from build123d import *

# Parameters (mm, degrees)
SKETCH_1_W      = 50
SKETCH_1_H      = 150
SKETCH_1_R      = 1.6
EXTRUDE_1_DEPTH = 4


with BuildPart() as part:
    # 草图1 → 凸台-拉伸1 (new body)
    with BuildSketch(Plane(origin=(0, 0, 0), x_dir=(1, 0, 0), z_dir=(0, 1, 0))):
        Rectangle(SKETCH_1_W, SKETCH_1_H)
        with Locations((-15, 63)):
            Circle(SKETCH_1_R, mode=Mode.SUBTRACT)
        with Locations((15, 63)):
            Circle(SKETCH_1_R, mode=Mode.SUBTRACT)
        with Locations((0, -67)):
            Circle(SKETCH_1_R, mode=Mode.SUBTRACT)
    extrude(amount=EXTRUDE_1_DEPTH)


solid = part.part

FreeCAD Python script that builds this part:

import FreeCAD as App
import Part
import Sketcher

V = App.Vector


def add_polygon(sketch, points):
    """Adds a closed chain of lines whose ends are joined by coincident constraints."""
    first, n = sketch.GeometryCount, len(points)
    for a, b in zip(points, points[1:] + points[:1]):
        sketch.addGeometry(Part.LineSegment(App.Vector(*a, 0), App.Vector(*b, 0)), False)
    for i in range(n):
        sketch.addConstraint(Sketcher.Constraint("Coincident", first + i, 2, first + (i + 1) % n, 1))

doc = App.newDocument("Part")
body = doc.addObject("PartDesign::Body", "Body")

sketch1 = doc.addObject("Sketcher::SketchObject", "Sketch")
body.addObject(sketch1)
sketch1.AttachmentSupport = (doc.XZ_Plane, [""])
sketch1.MapMode = "FlatFace"
add_polygon(sketch1, [(-25, -75), (-25, 75), (25, 75), (25, -75)])
sketch1.addGeometry(Part.Circle(V(0, 67, 0), V(0, 0, 1), 1.6), False)
sketch1.addGeometry(Part.Circle(V(-15, -63, 0), V(0, 0, 1), 1.6), False)
sketch1.addGeometry(Part.Circle(V(15, -63, 0), V(0, 0, 1), 1.6), False)
sketch1.addConstraint([
    Sketcher.Constraint("Vertical", 0),
    Sketcher.Constraint("Horizontal", 1),
    Sketcher.Constraint("Vertical", 2),
    Sketcher.Constraint("Horizontal", 3),
    Sketcher.Constraint("Equal", 4, 5),
    Sketcher.Constraint("Equal", 5, 6),
    Sketcher.Constraint("Symmetric", 0, 2, 2, 2, -1, 1),
    Sketcher.Constraint("Symmetric", 5, 3, 6, 3, -2),
    Sketcher.Constraint("PointOnObject", 4, 3, -2),
    Sketcher.Constraint("Diameter", 4, 3.2),
    Sketcher.Constraint("DistanceX", 1, 1, 1, 2, 50.0),
    Sketcher.Constraint("DistanceY", 0, 1, 0, 2, 150.0),
    Sketcher.Constraint("DistanceY", -1, 1, 4, 3, 67.0),
    Sketcher.Constraint("DistanceX", 5, 3, -1, 1, 15.0),
    Sketcher.Constraint("DistanceY", 5, 3, -1, 1, 63.0),
])
pad1 = doc.addObject("PartDesign::Pad", "Pad")
body.addObject(pad1)
pad1.Profile = sketch1
pad1.Length = 4
pad1.Reversed = True

doc.recompute()
